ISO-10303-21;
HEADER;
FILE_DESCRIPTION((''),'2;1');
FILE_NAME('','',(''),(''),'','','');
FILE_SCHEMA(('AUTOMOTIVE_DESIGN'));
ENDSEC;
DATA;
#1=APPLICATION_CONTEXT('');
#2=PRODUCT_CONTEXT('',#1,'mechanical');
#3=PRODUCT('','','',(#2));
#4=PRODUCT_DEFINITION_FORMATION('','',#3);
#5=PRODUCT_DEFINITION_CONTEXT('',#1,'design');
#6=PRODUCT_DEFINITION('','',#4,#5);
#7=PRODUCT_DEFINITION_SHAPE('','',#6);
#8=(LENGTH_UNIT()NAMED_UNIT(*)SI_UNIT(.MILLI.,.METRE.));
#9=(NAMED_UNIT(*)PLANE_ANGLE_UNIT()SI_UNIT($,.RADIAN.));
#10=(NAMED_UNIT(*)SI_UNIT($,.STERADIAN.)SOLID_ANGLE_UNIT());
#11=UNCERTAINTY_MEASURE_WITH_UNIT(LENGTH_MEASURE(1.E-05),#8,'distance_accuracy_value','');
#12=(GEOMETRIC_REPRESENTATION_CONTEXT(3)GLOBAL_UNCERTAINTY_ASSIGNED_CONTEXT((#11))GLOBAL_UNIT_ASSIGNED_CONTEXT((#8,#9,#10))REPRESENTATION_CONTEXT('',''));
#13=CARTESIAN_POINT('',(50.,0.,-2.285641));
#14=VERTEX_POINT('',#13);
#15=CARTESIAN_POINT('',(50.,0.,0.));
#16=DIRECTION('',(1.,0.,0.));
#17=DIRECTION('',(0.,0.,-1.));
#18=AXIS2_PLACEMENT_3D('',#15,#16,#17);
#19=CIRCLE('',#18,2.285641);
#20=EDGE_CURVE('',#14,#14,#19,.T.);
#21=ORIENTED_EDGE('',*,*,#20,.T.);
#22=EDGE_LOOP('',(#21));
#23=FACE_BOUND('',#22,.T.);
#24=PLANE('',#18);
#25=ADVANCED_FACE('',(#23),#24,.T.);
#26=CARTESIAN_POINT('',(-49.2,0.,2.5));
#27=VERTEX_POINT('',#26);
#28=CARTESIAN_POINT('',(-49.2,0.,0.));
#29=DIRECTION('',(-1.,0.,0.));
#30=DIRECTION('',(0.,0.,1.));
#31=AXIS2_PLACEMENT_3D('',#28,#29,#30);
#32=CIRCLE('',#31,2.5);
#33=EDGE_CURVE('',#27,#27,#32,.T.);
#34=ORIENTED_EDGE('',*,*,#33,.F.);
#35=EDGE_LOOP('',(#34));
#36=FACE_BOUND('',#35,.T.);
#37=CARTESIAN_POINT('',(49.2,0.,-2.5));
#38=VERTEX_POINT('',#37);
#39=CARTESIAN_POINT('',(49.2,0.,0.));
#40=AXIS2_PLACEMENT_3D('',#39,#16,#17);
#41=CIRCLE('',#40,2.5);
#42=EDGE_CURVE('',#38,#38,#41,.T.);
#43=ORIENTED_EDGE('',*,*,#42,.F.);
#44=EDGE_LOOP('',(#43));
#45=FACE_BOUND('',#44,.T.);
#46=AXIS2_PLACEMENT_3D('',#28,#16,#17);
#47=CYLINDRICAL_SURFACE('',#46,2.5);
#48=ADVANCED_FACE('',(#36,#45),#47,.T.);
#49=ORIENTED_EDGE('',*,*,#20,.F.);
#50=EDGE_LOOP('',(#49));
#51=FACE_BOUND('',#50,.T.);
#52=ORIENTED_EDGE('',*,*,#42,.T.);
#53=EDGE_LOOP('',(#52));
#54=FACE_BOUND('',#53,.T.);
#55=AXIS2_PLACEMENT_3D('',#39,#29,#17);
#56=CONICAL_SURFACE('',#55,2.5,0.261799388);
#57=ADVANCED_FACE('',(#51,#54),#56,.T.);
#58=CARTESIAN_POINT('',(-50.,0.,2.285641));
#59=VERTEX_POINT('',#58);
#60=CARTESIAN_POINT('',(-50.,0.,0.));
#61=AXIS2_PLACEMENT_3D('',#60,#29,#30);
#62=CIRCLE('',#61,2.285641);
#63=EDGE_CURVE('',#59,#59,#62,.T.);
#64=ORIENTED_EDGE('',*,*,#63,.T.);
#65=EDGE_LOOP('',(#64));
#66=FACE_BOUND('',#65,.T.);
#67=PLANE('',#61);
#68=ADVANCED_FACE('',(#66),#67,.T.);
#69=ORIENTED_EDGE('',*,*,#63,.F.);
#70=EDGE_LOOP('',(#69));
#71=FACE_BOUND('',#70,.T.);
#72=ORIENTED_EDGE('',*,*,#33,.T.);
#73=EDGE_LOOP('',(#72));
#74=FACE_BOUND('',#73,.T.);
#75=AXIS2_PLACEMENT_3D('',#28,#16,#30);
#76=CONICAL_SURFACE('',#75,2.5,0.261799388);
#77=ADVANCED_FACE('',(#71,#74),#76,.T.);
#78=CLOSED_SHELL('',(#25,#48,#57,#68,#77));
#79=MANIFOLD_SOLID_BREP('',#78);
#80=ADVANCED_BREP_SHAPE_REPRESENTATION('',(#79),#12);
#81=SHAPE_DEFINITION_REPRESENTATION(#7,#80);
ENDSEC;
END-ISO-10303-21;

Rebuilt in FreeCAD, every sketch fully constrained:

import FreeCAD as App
import Part
import Sketcher

V = App.Vector
Q = App.Units.Quantity

doc = App.newDocument("Part")
body = doc.addObject("PartDesign::Body", "Body")

# Sketch on YZ plane
sketch1 = body.newObject("Sketcher::SketchObject", "Sketch")
sketch1.AttachmentSupport = (doc.getObject("YZ_Plane"), [""])
sketch1.MapMode = "FlatFace"
sketch1.addGeometry(Part.Circle(V(0, 0, 0), V(0, 0, 1), 2.5), False)
sketch1.addConstraint([
    Sketcher.Constraint("Coincident", 0, 3, -1, 1),
    Sketcher.Constraint("Diameter", 0, Q("5 mm")),
])
pad1 = body.newObject("PartDesign::Pad", "Pad")
pad1.Profile = sketch1
pad1.Type = "TwoLengths"
pad1.Length = 49.2
pad1.Length2 = 49.2

# Sketch on YZ plane
sketch2 = body.newObject("Sketcher::SketchObject", "Sketch001")
sketch2.AttachmentSupport = (doc.getObject("YZ_Plane"), [""])
sketch2.MapMode = "FlatFace"
sketch2.AttachmentOffset = App.Placement(V(0, 0, 49.2), App.Rotation())
sketch2.addGeometry(Part.Circle(V(0, 0, 0), V(0, 0, 1), 2.5), False)
sketch2.addConstraint([
    Sketcher.Constraint("Coincident", 0, 3, -1, 1),
    Sketcher.Constraint("Diameter", 0, Q("5 mm")),
])
pad2 = body.newObject("PartDesign::Pad", "Pad001")
pad2.Profile = sketch2
pad2.Length = 0.8
pad2.TaperAngle = -15

# Sketch on YZ plane
sketch3 = body.newObject("Sketcher::SketchObject", "Sketch002")
sketch3.AttachmentSupport = (doc.getObject("YZ_Plane"), [""])
sketch3.MapMode = "FlatFace"
sketch3.AttachmentOffset = App.Placement(V(0, 0, -49.2), App.Rotation())
sketch3.addGeometry(Part.Circle(V(0, 0, 0), V(0, 0, 1), 2.5), False)
sketch3.addConstraint([
    Sketcher.Constraint("Coincident", 0, 3, -1, 1),
    Sketcher.Constraint("Diameter", 0, Q("5 mm")),
])
pad3 = body.newObject("PartDesign::Pad", "Pad002")
pad3.Profile = sketch3
pad3.Length = 0.8
pad3.Reversed = True
pad3.TaperAngle = -15

doc.recompute()
